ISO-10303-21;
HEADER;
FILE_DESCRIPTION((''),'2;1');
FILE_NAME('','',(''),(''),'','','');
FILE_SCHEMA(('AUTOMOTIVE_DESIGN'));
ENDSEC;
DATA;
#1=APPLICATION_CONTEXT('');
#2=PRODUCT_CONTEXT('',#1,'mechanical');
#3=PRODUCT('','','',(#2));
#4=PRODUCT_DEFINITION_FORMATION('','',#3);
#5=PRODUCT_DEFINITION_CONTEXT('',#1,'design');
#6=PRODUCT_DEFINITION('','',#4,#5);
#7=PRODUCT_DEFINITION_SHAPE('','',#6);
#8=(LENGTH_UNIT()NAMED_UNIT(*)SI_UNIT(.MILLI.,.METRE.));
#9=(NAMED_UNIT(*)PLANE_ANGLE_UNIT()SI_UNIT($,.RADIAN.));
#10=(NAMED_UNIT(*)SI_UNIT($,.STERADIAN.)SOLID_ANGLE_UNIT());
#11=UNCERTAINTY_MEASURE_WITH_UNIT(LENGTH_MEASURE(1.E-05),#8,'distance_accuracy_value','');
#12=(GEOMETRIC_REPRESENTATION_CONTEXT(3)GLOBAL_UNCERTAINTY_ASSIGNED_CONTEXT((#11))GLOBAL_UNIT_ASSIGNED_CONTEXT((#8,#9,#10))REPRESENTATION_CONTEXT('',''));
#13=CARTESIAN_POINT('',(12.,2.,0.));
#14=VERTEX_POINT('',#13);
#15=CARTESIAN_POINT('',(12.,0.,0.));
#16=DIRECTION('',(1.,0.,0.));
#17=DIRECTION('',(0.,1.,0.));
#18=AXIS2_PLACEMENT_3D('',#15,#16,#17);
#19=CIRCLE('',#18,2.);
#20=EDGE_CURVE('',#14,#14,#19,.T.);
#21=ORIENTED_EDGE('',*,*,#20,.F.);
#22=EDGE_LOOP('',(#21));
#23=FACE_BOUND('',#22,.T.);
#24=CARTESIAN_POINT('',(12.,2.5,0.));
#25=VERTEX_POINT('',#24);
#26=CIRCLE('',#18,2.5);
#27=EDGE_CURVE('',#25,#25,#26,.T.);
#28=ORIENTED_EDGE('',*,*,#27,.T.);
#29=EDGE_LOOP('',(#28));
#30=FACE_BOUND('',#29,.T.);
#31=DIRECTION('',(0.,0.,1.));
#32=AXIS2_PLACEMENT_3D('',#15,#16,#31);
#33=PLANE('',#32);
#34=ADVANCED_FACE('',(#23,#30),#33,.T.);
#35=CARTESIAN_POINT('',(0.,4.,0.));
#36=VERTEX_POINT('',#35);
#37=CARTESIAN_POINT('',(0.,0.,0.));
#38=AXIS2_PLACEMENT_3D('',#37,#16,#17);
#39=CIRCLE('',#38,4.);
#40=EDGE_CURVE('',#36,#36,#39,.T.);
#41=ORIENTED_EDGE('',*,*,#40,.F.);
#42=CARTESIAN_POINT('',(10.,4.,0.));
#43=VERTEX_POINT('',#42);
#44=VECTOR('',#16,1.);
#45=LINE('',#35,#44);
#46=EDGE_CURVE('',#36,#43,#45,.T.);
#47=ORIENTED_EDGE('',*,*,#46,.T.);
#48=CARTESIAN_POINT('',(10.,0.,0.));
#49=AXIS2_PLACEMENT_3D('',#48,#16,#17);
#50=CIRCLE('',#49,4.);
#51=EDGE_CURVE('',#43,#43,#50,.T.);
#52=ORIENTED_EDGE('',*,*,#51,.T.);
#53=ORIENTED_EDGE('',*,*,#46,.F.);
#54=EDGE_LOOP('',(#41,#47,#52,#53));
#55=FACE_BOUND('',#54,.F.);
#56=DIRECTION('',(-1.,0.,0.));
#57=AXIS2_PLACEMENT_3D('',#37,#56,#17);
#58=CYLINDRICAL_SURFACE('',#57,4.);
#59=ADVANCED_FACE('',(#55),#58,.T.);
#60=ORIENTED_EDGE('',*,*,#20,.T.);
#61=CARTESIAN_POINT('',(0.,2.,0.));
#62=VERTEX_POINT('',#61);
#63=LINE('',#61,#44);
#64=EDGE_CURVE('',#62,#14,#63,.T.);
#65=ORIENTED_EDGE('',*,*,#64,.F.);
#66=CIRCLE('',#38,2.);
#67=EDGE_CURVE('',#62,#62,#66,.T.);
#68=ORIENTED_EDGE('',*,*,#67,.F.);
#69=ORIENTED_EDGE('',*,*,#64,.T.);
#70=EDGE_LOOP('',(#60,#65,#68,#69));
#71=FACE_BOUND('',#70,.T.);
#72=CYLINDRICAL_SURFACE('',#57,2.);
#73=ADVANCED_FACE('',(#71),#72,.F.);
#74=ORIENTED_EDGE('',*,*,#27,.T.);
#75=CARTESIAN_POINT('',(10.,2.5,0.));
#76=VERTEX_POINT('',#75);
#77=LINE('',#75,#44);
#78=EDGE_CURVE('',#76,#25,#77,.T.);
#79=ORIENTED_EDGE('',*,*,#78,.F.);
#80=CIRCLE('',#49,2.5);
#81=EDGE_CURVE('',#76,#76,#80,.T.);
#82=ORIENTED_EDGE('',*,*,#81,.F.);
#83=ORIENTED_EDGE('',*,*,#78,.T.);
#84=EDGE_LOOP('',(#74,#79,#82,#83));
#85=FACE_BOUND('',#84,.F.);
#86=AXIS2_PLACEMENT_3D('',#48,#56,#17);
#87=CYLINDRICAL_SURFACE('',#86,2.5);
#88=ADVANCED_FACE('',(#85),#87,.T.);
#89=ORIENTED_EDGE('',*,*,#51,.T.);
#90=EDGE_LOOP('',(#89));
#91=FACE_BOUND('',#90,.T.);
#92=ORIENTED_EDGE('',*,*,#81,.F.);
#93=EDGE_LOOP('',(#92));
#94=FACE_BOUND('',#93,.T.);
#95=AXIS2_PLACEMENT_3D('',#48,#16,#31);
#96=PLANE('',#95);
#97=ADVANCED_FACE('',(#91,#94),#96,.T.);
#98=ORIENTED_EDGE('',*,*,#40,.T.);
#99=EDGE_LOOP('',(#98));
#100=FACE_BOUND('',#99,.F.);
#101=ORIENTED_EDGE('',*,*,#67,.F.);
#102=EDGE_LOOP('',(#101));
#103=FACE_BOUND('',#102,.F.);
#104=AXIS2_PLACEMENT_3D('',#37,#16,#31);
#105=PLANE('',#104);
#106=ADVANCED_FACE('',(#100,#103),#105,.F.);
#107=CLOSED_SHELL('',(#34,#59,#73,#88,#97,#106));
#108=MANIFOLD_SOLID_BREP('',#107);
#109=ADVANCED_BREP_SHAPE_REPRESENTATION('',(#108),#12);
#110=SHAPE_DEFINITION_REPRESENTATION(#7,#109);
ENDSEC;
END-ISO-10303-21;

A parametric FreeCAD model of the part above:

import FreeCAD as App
import Part
import Sketcher

doc = App.newDocument("Part")
body = doc.addObject("PartDesign::Body", "Body")

sketch1 = doc.addObject("Sketcher::SketchObject", "Sketch")
body.addObject(sketch1)
sketch1.AttachmentSupport = (doc.YZ_Plane, [""])
sketch1.MapMode = "FlatFace"
sketch1.addGeometry([
    Part.Circle(App.Vector(0, 0, 0), App.Vector(0, 0, 1), 4),
    Part.Circle(App.Vector(0, 0, 0), App.Vector(0, 0, 1), 2),
], False)
sketch1.addConstraint([
    Sketcher.Constraint("Coincident", 0, 3, -1, 1),
    Sketcher.Constraint("Coincident", 1, 3, -1, 1),
    Sketcher.Constraint("Diameter", 0, 8.0),
    Sketcher.Constraint("Diameter", 1, 4.0),
])
pad1 = doc.addObject("PartDesign::Pad", "Pad")
body.addObject(pad1)
pad1.Profile = sketch1
pad1.Length = 10

sketch2 = doc.addObject("Sketcher::SketchObject", "Sketch001")
body.addObject(sketch2)
sketch2.AttachmentSupport = (doc.YZ_Plane, [""])
sketch2.MapMode = "FlatFace"
sketch2.AttachmentOffset = App.Placement(App.Vector(0, 0, 10), App.Rotation())
sketch2.addGeometry([
    Part.Circle(App.Vector(0, 0, 0), App.Vector(0, 0, 1), 2.5),
    Part.Circle(App.Vector(0, 0, 0), App.Vector(0, 0, 1), 2),
], False)
sketch2.addConstraint([
    Sketcher.Constraint("Coincident", 0, 3, -1, 1),
    Sketcher.Constraint("Coincident", 1, 3, -1, 1),
    Sketcher.Constraint("Diameter", 0, 5.0),
    Sketcher.Constraint("Diameter", 1, 4.0),
])
pad2 = doc.addObject("PartDesign::Pad", "Pad001")
body.addObject(pad2)
pad2.Profile = sketch2
pad2.Length = 2

doc.recompute()
